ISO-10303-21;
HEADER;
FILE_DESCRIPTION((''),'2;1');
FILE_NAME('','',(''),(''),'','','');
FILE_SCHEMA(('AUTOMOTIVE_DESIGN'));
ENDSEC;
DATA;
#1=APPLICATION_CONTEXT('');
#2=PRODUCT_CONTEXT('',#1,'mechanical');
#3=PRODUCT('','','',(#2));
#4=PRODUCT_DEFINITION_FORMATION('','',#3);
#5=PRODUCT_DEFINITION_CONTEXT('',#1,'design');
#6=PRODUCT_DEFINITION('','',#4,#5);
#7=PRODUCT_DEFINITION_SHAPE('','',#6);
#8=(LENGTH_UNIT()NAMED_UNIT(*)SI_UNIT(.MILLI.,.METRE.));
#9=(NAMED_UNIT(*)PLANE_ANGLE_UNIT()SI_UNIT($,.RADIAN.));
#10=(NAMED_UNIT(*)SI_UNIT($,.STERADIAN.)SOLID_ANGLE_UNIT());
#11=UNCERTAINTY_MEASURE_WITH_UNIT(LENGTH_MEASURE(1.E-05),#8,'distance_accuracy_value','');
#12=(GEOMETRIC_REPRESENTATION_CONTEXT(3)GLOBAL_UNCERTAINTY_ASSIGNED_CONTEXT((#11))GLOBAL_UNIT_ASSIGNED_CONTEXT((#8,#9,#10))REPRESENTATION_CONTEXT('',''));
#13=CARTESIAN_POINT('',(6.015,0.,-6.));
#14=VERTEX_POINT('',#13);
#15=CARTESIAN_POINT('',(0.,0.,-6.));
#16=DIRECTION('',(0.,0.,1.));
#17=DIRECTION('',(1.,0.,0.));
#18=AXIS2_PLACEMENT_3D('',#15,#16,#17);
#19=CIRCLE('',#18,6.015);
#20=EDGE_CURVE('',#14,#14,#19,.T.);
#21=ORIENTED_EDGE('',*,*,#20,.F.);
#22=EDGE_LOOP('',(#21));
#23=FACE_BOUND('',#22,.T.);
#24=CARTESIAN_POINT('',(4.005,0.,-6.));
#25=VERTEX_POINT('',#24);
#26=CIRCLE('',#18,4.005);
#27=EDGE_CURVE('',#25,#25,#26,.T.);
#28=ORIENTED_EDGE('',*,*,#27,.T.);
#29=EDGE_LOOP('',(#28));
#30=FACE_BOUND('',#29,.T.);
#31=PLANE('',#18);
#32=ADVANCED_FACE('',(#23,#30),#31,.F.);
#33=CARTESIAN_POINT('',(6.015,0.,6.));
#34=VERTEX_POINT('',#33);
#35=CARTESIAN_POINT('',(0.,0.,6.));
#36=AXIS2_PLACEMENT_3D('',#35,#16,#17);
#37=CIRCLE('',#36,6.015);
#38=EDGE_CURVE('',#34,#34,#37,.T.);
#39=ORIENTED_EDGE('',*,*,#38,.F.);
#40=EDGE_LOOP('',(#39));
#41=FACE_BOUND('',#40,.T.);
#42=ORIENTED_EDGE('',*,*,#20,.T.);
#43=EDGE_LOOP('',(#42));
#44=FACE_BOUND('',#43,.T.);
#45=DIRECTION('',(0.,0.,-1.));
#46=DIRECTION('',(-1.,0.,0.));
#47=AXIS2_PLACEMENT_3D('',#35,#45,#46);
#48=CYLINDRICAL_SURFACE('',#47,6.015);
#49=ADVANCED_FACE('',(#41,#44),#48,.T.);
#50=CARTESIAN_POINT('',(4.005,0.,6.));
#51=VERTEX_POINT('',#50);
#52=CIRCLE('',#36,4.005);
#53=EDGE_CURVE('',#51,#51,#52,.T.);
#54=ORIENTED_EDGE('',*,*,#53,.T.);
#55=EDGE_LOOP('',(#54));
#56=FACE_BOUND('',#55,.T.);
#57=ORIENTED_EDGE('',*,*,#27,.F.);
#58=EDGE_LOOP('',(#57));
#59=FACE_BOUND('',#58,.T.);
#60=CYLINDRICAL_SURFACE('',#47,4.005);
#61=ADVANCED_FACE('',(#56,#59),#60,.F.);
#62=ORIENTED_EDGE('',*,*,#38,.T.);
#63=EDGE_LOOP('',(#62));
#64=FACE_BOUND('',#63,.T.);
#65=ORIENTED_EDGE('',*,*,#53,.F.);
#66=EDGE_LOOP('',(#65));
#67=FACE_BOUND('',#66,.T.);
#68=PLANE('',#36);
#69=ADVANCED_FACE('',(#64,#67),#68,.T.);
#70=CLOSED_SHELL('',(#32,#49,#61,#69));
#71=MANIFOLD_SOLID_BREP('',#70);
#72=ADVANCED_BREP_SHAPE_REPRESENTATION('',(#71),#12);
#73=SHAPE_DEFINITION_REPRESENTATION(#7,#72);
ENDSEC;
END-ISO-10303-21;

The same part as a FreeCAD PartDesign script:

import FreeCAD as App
import Part
import Sketcher
Q = App.Units.Quantity

doc = App.newDocument("Part")
params = doc.addObject("Spreadsheet::Sheet", "Params")
for row, (alias, value) in enumerate([
    ("sketch1_diameter", "12.03 mm"),
    ("sketch1_diameter2", "8.01 mm"),
    ("pad1_length", "12 mm"),
], start=1):
    params.set(f"A{row}", alias)
    params.set(f"B{row}", "=" + value)
    params.setAlias(f"B{row}", alias)

body = doc.addObject("PartDesign::Body", "Body")

# Sketch on XY plane
sketch1 = body.newObject("Sketcher::SketchObject", "Sketch")
sketch1.AttachmentSupport = (doc.getObject("XY_Plane"), [""])
sketch1.MapMode = "FlatFace"
sketch1.addGeometry(Part.Circle(App.Vector(0, 0, 0), App.Vector(0, 0, 1), 6), False)
sketch1.addGeometry(Part.Circle(App.Vector(0, 0, 0), App.Vector(0, 0, 1), 4), False)
sketch1.addConstraint(Sketcher.Constraint("Coincident", 0, 3, -1, 1))
sketch1.addConstraint(Sketcher.Constraint("Coincident", 1, 3, -1, 1))
sketch1.addConstraint(Sketcher.Constraint("Diameter", 0, Q("12.03 mm")))
sketch1.addConstraint(Sketcher.Constraint("Diameter", 1, Q("8.01 mm")))
sketch1.setExpression("Constraints[2]", "Params.sketch1_diameter")
sketch1.setExpression("Constraints[3]", "Params.sketch1_diameter2")
pad1 = body.newObject("PartDesign::Pad", "Pad")
pad1.Profile = sketch1
pad1.setExpression("Length", "Params.pad1_length")
pad1.Midplane = True

doc.recompute()
